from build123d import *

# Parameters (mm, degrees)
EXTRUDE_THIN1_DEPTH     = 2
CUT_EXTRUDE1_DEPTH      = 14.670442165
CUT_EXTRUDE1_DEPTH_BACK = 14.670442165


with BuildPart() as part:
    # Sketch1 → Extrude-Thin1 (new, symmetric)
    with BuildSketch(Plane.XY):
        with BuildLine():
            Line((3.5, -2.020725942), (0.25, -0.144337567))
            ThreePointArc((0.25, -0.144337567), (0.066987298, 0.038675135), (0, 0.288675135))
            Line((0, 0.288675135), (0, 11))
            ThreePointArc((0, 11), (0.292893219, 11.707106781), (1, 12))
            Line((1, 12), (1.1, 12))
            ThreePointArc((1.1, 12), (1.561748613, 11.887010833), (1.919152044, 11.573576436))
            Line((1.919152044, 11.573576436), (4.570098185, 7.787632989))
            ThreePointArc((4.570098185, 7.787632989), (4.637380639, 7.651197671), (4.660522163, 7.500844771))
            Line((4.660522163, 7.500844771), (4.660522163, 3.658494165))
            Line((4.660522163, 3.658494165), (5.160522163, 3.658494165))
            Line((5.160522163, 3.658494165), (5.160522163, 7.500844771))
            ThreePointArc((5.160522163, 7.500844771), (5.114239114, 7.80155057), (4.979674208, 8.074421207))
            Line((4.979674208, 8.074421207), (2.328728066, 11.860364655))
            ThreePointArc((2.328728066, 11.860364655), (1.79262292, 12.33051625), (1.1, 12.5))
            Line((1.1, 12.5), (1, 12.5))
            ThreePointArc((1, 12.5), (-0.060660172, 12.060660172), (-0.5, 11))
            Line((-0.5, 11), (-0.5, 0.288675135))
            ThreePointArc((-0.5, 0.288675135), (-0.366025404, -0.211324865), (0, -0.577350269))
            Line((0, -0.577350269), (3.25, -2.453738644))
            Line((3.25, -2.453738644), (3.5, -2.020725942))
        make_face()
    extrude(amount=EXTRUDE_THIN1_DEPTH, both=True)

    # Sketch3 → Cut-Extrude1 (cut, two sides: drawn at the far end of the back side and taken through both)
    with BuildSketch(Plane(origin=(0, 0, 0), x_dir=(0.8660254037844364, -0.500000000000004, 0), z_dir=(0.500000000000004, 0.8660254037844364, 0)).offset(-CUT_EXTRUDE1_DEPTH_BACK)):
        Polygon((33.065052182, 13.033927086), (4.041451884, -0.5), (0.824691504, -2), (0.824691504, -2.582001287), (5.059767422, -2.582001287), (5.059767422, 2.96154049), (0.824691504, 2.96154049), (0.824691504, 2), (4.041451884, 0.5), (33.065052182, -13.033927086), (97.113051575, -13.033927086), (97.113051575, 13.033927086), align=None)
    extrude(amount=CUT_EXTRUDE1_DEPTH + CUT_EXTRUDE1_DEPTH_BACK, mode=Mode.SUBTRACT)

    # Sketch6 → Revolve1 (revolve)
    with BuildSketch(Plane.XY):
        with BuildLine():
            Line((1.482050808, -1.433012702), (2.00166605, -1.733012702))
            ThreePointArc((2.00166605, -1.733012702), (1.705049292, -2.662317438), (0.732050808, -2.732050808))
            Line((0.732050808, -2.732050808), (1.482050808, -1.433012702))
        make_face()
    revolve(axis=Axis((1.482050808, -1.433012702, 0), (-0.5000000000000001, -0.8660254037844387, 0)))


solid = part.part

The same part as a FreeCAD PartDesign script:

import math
import FreeCAD as App
import Part
import Sketcher
from FreeCAD import Vector
Q = App.Units.Quantity


def add_polygon(sketch, points):
    """Adds a closed chain of lines whose ends are joined by coincident constraints."""
    first, n = sketch.GeometryCount, len(points)
    for a, b in zip(points, points[1:] + points[:1]):
        sketch.addGeometry(Part.LineSegment(App.Vector(*a, 0), App.Vector(*b, 0)), False)
    for i in range(n):
        sketch.addConstraint(Sketcher.Constraint("Coincident", first + i, 2, first + (i + 1) % n, 1))

doc = App.newDocument("Part")
params = doc.addObject("Spreadsheet::Sheet", "Params")
for row, (alias, value) in enumerate([
    ("sketch1_radius", "1 mm"),
    ("sketch1_radius2", "0.5 mm"),
    ("sketch1_width", "0.1 mm"),
    ("pad1_length", "4 mm"),
    ("sketch3_radius", "0.87 mm"),
    ("sketch3_length", "0.6 mm"),
    ("sketch3_length2", "1.5 mm"),
    ("revolution_angle", "360 deg"),
], start=1):
    params.set(f"A{row}", alias)
    params.set(f"B{row}", "=" + value)
    params.setAlias(f"B{row}", alias)

body = doc.addObject("PartDesign::Body", "Body")

sketch1 = body.newObject("Sketcher::SketchObject", "Sketch")
sketch1.AttachmentSupport = (doc.getObject("XY_Plane"), [""])
sketch1.MapMode = "FlatFace"
sketch1.addGeometry(Part.LineSegment(Vector(3.5, -2.02, 0), Vector(0.25, -0.14, 0)), False)
sketch1.addGeometry(Part.ArcOfCircle(Part.Circle(Vector(0.5, 0.29, 0), Vector(0, 0, 1), 0.5), math.radians(180), math.radians(240)), False)
sketch1.addGeometry(Part.LineSegment(Vector(0, 0.29, 0), Vector(0, 11, 0)), False)
sketch1.addGeometry(Part.ArcOfCircle(Part.Circle(Vector(1, 11, 0), Vector(0, 0, 1), 1), math.radians(90), math.radians(180)), False)
sketch1.addGeometry(Part.LineSegment(Vector(1, 12, 0), Vector(1.1, 12, 0)), False)
sketch1.addGeometry(Part.ArcOfCircle(Part.Circle(Vector(1.1, 11, 0), Vector(0, 0, 1), 1), math.radians(35), math.radians(90)), False)
sketch1.addGeometry(Part.LineSegment(Vector(1.92, 11.57, 0), Vector(4.57, 7.79, 0)), False)
sketch1.addGeometry(Part.ArcOfCircle(Part.Circle(Vector(4.16, 7.5, 0), Vector(0, 0, 1), 0.5), math.radians(0), math.radians(35)), False)
sketch1.addGeometry(Part.LineSegment(Vector(4.66, 7.5, 0), Vector(4.66, 3.66, 0)), False)
sketch1.addGeometry(Part.LineSegment(Vector(4.66, 3.66, 0), Vector(5.16, 3.66, 0)), False)
sketch1.addGeometry(Part.LineSegment(Vector(5.16, 3.66, 0), Vector(5.16, 7.5, 0)), False)
sketch1.addGeometry(Part.ArcOfCircle(Part.Circle(Vector(4.16, 7.5, 0), Vector(0, 0, 1), 1), math.radians(0), math.radians(35)), False)
sketch1.addGeometry(Part.LineSegment(Vector(4.98, 8.07, 0), Vector(2.33, 11.86, 0)), False)
sketch1.addGeometry(Part.ArcOfCircle(Part.Circle(Vector(1.1, 11, 0), Vector(0, 0, 1), 1.5), math.radians(35), math.radians(90)), False)
sketch1.addGeometry(Part.LineSegment(Vector(1.1, 12.5, 0), Vector(1, 12.5, 0)), False)
sketch1.addGeometry(Part.ArcOfCircle(Part.Circle(Vector(1, 11, 0), Vector(0, 0, 1), 1.5), math.radians(90), math.radians(180)), False)
sketch1.addGeometry(Part.LineSegment(Vector(-0.5, 11, 0), Vector(-0.5, 0.29, 0)), False)
sketch1.addGeometry(Part.ArcOfCircle(Part.Circle(Vector(0.5, 0.29, 0), Vector(0, 0, 1), 1), math.radians(180), math.radians(240)), False)
sketch1.addGeometry(Part.LineSegment(Vector(0, -0.58, 0), Vector(3.25, -2.45, 0)), False)
sketch1.addGeometry(Part.LineSegment(Vector(3.25, -2.45, 0), Vector(3.5, -2.02, 0)), False)
sketch1.addConstraint(Sketcher.Constraint("Tangent", 0, 2, 1, 2))
sketch1.addConstraint(Sketcher.Constraint("Tangent", 1, 1, 2, 1))
sketch1.addConstraint(Sketcher.Constraint("Tangent", 2, 2, 3, 2))
sketch1.addConstraint(Sketcher.Constraint("Tangent", 3, 1, 4, 1))
sketch1.addConstraint(Sketcher.Constraint("Tangent", 4, 2, 5, 2))
sketch1.addConstraint(Sketcher.Constraint("Tangent", 5, 1, 6, 1))
sketch1.addConstraint(Sketcher.Constraint("Tangent", 6, 2, 7, 2))
sketch1.addConstraint(Sketcher.Constraint("Tangent", 7, 1, 8, 1))
sketch1.addConstraint(Sketcher.Constraint("Coincident", 8, 2, 9, 1))
sketch1.addConstraint(Sketcher.Constraint("Coincident", 9, 2, 10, 1))
sketch1.addConstraint(Sketcher.Constraint("Tangent", 10, 2, 11, 1))
sketch1.addConstraint(Sketcher.Constraint("Tangent", 11, 2, 12, 1))
sketch1.addConstraint(Sketcher.Constraint("Tangent", 12, 2, 13, 1))
sketch1.addConstraint(Sketcher.Constraint("Tangent", 13, 2, 14, 1))
sketch1.addConstraint(Sketcher.Constraint("Tangent", 14, 2, 15, 1))
sketch1.addConstraint(Sketcher.Constraint("Tangent", 15, 2, 16, 1))
sketch1.addConstraint(Sketcher.Constraint("Tangent", 16, 2, 17, 1))
sketch1.addConstraint(Sketcher.Constraint("Tangent", 17, 2, 18, 1))
sketch1.addConstraint(Sketcher.Constraint("Coincident", 18, 2, 19, 1))
sketch1.addConstraint(Sketcher.Constraint("Coincident", 19, 2, 0, 1))
sketch1.addConstraint(Sketcher.Constraint("Vertical", 2))
sketch1.addConstraint(Sketcher.Constraint("Horizontal", 4))
sketch1.addConstraint(Sketcher.Constraint("Vertical", 8))
sketch1.addConstraint(Sketcher.Constraint("Horizontal", 9))
sketch1.addConstraint(Sketcher.Constraint("Vertical", 10))
sketch1.addConstraint(Sketcher.Constraint("Horizontal", 14))
sketch1.addConstraint(Sketcher.Constraint("Vertical", 16))
sketch1.addConstraint(Sketcher.Constraint("Coincident", 11, 3, 7, 3))
sketch1.addConstraint(Sketcher.Constraint("Coincident", 13, 3, 5, 3))
sketch1.addConstraint(Sketcher.Constraint("Coincident", 15, 3, 3, 3))
sketch1.addConstraint(Sketcher.Constraint("Coincident", 17, 3, 1, 3))
sketch1.addConstraint(Sketcher.Constraint("Equal", 3, 5))
sketch1.addConstraint(Sketcher.Constraint("Equal", 1, 7))
sketch1.addConstraint(Sketcher.Constraint("Equal", 5, 11))
sketch1.addConstraint(Sketcher.Constraint("Equal", 11, 17))
sketch1.addConstraint(Sketcher.Constraint("PointOnObject", 1, 1, -2))
sketch1.addConstraint(Sketcher.Constraint("PointOnObject", 17, 2, -2))
sketch1.addConstraint(Sketcher.Constraint("Parallel", 0, 18))
sketch1.addConstraint(Sketcher.Constraint("Perpendicular", 18, 19))
sketch1.addConstraint(Sketcher.Constraint("Radius", 3, 1.0))
sketch1.addConstraint(Sketcher.Constraint("Radius", 1, 0.5))
sketch1.addConstraint(Sketcher.Constraint("Angle", 6, Q("-55 deg")))
sketch1.addConstraint(Sketcher.Constraint("DistanceX", 4, 1, 4, 2, 0.1))
sketch1.addConstraint(Sketcher.Constraint("DistanceY", -1, 1, 3, 3, 11.0))
sketch1.addConstraint(Sketcher.Constraint("DistanceX", 0, 2, 18, 2, 3.0))
sketch1.addConstraint(Sketcher.Constraint("DistanceY", 8, 2, 8, 1, 3.842351))
sketch1.addConstraint(Sketcher.Constraint("DistanceX", -1, 1, 6, 2, 4.570098))
sketch1.addConstraint(Sketcher.Constraint("DistanceY", 2, 1, 2, 2, 10.711325))
sketch1.setExpression("Constraints[39]", "Params.sketch1_radius")
sketch1.setExpression("Constraints[40]", "Params.sketch1_radius2")
sketch1.setExpression("Constraints[42]", "Params.sketch1_width")
pad1 = body.newObject("PartDesign::Pad", "Pad")
pad1.Profile = sketch1
pad1.setExpression("Length", "Params.pad1_length")
pad1.Midplane = True

sketch2 = body.newObject("Sketcher::SketchObject", "Sketch001")
sketch2.Placement = App.Placement(Vector(0, 0, 0), App.Rotation(Vector(0.866025404, -0.5, 0), Vector(0, 0, -1), Vector(0.5, 0.866025404, 0), "ZXY"))
add_polygon(sketch2, [(33.1, 13), (4, -0.5), (0.8, -2), (0.8, -2.6), (5.1, -2.6), (5.1, 3), (0.8, 3), (0.8, 2), (4, 0.5), (33.1, -13), (97.1, -13), (97.1, 13)])
sketch2.addConstraint(Sketcher.Constraint("Vertical", 2))
sketch2.addConstraint(Sketcher.Constraint("Horizontal", 3))
sketch2.addConstraint(Sketcher.Constraint("Vertical", 4))
sketch2.addConstraint(Sketcher.Constraint("Horizontal", 5))
sketch2.addConstraint(Sketcher.Constraint("Vertical", 6))
sketch2.addConstraint(Sketcher.Constraint("Horizontal", 9))
sketch2.addConstraint(Sketcher.Constraint("Vertical", 10))
sketch2.addConstraint(Sketcher.Constraint("Horizontal", 11))
sketch2.addConstraint(Sketcher.Constraint("Symmetric", 1, 2, 6, 2, -1))
sketch2.addConstraint(Sketcher.Constraint("Symmetric", 0, 2, 7, 2, -1))
sketch2.addConstraint(Sketcher.Constraint("Symmetric", 8, 2, 11, 2, -1))
sketch2.addConstraint(Sketcher.Constraint("Parallel", 0, 1))
sketch2.addConstraint(Sketcher.Constraint("Angle", 0, Q("-155 deg")))
sketch2.addConstraint(Sketcher.Constraint("DistanceY", 1, 2, -1, 1, 2.0))
sketch2.addConstraint(Sketcher.Constraint("DistanceY", 0, 2, 7, 2, 1.0))
sketch2.addConstraint(Sketcher.Constraint("DistanceX", 9, 1, 9, 2, 64.047999))
sketch2.addConstraint(Sketcher.Constraint("DistanceY", 2, 2, 2, 1, 0.582001))
sketch2.addConstraint(Sketcher.Constraint("Distance", 0, 32.024))
sketch2.addConstraint(Sketcher.Constraint("DistanceY", 4, 1, 4, 2, 5.543542))
sketch2.addConstraint(Sketcher.Constraint("DistanceX", 3, 1, 3, 2, 4.235076))
sketch2.addConstraint(Sketcher.Constraint("DistanceX", -1, 1, 0, 2, 4.041452))
pocket1 = body.newObject("PartDesign::Pocket", "Pocket")
pocket1.Profile = sketch2
pocket1.Type = "ThroughAll"
pocket1.Midplane = True

sketch3 = body.newObject("Sketcher::SketchObject", "Sketch002")
sketch3.AttachmentSupport = (doc.getObject("XY_Plane"), [""])
sketch3.MapMode = "FlatFace"
sketch3.addGeometry(Part.LineSegment(Vector(2, -1.7, 0), Vector(1.5, -1.4, 0)), False)
sketch3.addGeometry(Part.LineSegment(Vector(1.5, -1.4, 0), Vector(0.7, -2.7, 0)), False)
sketch3.addGeometry(Part.ArcOfCircle(Part.Circle(Vector(1.2, -2, 0), Vector(0, 0, 1), 0.9), math.radians(-120), math.radians(16)), False)
sketch3.addGeometry(Part.LineSegment(Vector(1.5, -1.4, 0), Vector(0.7, -2.7, 0)), True)
sketch3.addConstraint(Sketcher.Constraint("Coincident", 0, 2, 1, 1))
sketch3.addConstraint(Sketcher.Constraint("Coincident", 1, 2, 2, 1))
sketch3.addConstraint(Sketcher.Constraint("Coincident", 2, 2, 0, 1))
sketch3.addConstraint(Sketcher.Constraint("Coincident", 3, 1, 0, 2))
sketch3.addConstraint(Sketcher.Constraint("Coincident", 3, 2, 1, 2))
sketch3.addConstraint(Sketcher.Constraint("Perpendicular", 0, 1))
sketch3.addConstraint(Sketcher.Constraint("Angle", 0, Q("150 deg")))
sketch3.addConstraint(Sketcher.Constraint("Radius", 2, 0.87))
sketch3.addConstraint(Sketcher.Constraint("Distance", 0, 0.6))
sketch3.addConstraint(Sketcher.Constraint("Distance", 1, 1.5))
sketch3.addConstraint(Sketcher.Constraint("DistanceX", -1, 1, 2, 3, 1.167051))
sketch3.addConstraint(Sketcher.Constraint("DistanceY", 2, 3, -1, 1, 1.978609))
sketch3.setExpression("Constraints[7]", "Params.sketch3_radius")
sketch3.setExpression("Constraints[8]", "Params.sketch3_length")
sketch3.setExpression("Constraints[9]", "Params.sketch3_length2")
revolution = body.newObject("PartDesign::Revolution", "Revolution")
revolution.Profile = sketch3
revolution.ReferenceAxis = (sketch3, ["Axis0"])
revolution.setExpression("Angle", "Params.revolution_angle")

doc.recompute()
